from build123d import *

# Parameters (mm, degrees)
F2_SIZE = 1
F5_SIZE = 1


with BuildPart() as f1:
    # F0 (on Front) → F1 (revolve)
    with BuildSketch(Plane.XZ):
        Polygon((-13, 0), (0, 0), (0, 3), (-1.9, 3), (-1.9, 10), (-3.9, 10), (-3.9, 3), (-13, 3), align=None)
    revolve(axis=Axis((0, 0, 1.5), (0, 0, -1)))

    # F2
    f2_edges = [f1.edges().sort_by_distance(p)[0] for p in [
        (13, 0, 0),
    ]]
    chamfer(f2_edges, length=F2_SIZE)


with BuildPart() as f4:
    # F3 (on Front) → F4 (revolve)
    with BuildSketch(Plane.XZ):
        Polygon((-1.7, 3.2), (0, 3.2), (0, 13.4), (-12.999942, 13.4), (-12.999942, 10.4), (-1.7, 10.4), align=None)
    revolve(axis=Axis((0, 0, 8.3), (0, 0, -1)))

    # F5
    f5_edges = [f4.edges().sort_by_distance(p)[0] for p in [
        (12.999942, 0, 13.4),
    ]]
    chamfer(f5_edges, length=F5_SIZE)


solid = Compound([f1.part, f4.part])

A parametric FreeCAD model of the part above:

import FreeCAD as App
import Part
import Sketcher


def edges_at(feature, points):
    """Names of the edges that pass closest to the given points."""
    edges = feature.Shape.Edges
    near = lambda p: min(range(len(edges)), key=lambda i: edges[i].distToShape(Part.Vertex(*p))[0])
    return sorted({f"Edge{near(p) + 1}" for p in points})

doc = App.newDocument("Part")
body = doc.addObject("PartDesign::Body", "Body")

# Sketch on XZ plane
sketch1 = body.newObject("Sketcher::SketchObject", "Sketch")
sketch1.AttachmentSupport = (doc.getObject("XZ_Plane"), [""])
sketch1.MapMode = "FlatFace"
sketch1.addGeometry(Part.LineSegment(App.Vector(-13, 0, 0), App.Vector(0, 0, 0)), False)
sketch1.addGeometry(Part.LineSegment(App.Vector(0, 0, 0), App.Vector(0, 3, 0)), False)
sketch1.addGeometry(Part.LineSegment(App.Vector(0, 3, 0), App.Vector(-1.9, 3, 0)), False)
sketch1.addGeometry(Part.LineSegment(App.Vector(-1.9, 3, 0), App.Vector(-1.9, 10, 0)), False)
sketch1.addGeometry(Part.LineSegment(App.Vector(-1.9, 10, 0), App.Vector(-3.9, 10, 0)), False)
sketch1.addGeometry(Part.LineSegment(App.Vector(-3.9, 10, 0), App.Vector(-3.9, 3, 0)), False)
sketch1.addGeometry(Part.LineSegment(App.Vector(-3.9, 3, 0), App.Vector(-13, 3, 0)), False)
sketch1.addGeometry(Part.LineSegment(App.Vector(-13, 3, 0), App.Vector(-13, 0, 0)), False)
sketch1.addConstraint(Sketcher.Constraint("Coincident", 0, 2, 1, 1))
sketch1.addConstraint(Sketcher.Constraint("Coincident", 1, 2, 2, 1))
sketch1.addConstraint(Sketcher.Constraint("Coincident", 2, 2, 3, 1))
sketch1.addConstraint(Sketcher.Constraint("Coincident", 3, 2, 4, 1))
sketch1.addConstraint(Sketcher.Constraint("Coincident", 4, 2, 5, 1))
sketch1.addConstraint(Sketcher.Constraint("Coincident", 5, 2, 6, 1))
sketch1.addConstraint(Sketcher.Constraint("Coincident", 6, 2, 7, 1))
sketch1.addConstraint(Sketcher.Constraint("Coincident", 7, 2, 0, 1))
sketch1.addConstraint(Sketcher.Constraint("Horizontal", 0))
sketch1.addConstraint(Sketcher.Constraint("Vertical", 1))
sketch1.addConstraint(Sketcher.Constraint("Horizontal", 2))
sketch1.addConstraint(Sketcher.Constraint("Vertical", 3))
sketch1.addConstraint(Sketcher.Constraint("Horizontal", 4))
sketch1.addConstraint(Sketcher.Constraint("Vertical", 5))
sketch1.addConstraint(Sketcher.Constraint("Horizontal", 6))
sketch1.addConstraint(Sketcher.Constraint("Vertical", 7))
sketch1.addConstraint(Sketcher.Constraint("Coincident", 0, 2, -1, 1))
sketch1.addConstraint(Sketcher.Constraint("Horizontal", 2, 2, 5, 2))
sketch1.addConstraint(Sketcher.Constraint("DistanceX", 0, 1, 0, 2, 13.0))
sketch1.addConstraint(Sketcher.Constraint("DistanceX", 4, 2, 4, 1, 2.0))
sketch1.addConstraint(Sketcher.Constraint("DistanceY", 1, 1, 1, 2, 3.0))
sketch1.addConstraint(Sketcher.Constraint("DistanceY", 3, 1, 3, 2, 7.0))
sketch1.addConstraint(Sketcher.Constraint("DistanceX", 2, 2, 2, 1, 1.9))
revolution = body.newObject("PartDesign::Revolution", "Revolution")
revolution.Profile = sketch1
revolution.ReferenceAxis = (sketch1, ["V_Axis"])
revolution.Angle = 360
doc.recompute()

chamfer = body.newObject("PartDesign::Chamfer", "Chamfer")
chamfer.Base = (revolution, edges_at(revolution, [(13, 0, 0)]))
chamfer.Size = 1
body2 = doc.addObject("PartDesign::Body", "Body001")

# Sketch on XZ plane
sketch2 = body2.newObject("Sketcher::SketchObject", "Sketch001")
sketch2.AttachmentSupport = (doc.getObject("XZ_Plane001"), [""])
sketch2.MapMode = "FlatFace"
sketch2.addGeometry(Part.LineSegment(App.Vector(-1.7, 3.2, 0), App.Vector(0, 3.2, 0)), False)
sketch2.addGeometry(Part.LineSegment(App.Vector(0, 3.2, 0), App.Vector(0, 13.4, 0)), False)
sketch2.addGeometry(Part.LineSegment(App.Vector(0, 13.4, 0), App.Vector(-13, 13.4, 0)), False)
sketch2.addGeometry(Part.LineSegment(App.Vector(-13, 13.4, 0), App.Vector(-13, 10.4, 0)), False)
sketch2.addGeometry(Part.LineSegment(App.Vector(-13, 10.4, 0), App.Vector(-1.7, 10.4, 0)), False)
sketch2.addGeometry(Part.LineSegment(App.Vector(-1.7, 10.4, 0), App.Vector(-1.7, 3.2, 0)), False)
sketch2.addConstraint(Sketcher.Constraint("Coincident", 0, 2, 1, 1))
sketch2.addConstraint(Sketcher.Constraint("Coincident", 1, 2, 2, 1))
sketch2.addConstraint(Sketcher.Constraint("Coincident", 2, 2, 3, 1))
sketch2.addConstraint(Sketcher.Constraint("Coincident", 3, 2, 4, 1))
sketch2.addConstraint(Sketcher.Constraint("Coincident", 4, 2, 5, 1))
sketch2.addConstraint(Sketcher.Constraint("Coincident", 5, 2, 0, 1))
sketch2.addConstraint(Sketcher.Constraint("Horizontal", 0))
sketch2.addConstraint(Sketcher.Constraint("Vertical", 1))
sketch2.addConstraint(Sketcher.Constraint("Horizontal", 2))
sketch2.addConstraint(Sketcher.Constraint("Vertical", 3))
sketch2.addConstraint(Sketcher.Constraint("Horizontal", 4))
sketch2.addConstraint(Sketcher.Constraint("Vertical", 5))
sketch2.addConstraint(Sketcher.Constraint("PointOnObject", 0, 2, -2))
sketch2.addConstraint(Sketcher.Constraint("DistanceY", 3, 2, 3, 1, 3.0))
sketch2.addConstraint(Sketcher.Constraint("DistanceX", 0, 1, 0, 2, 1.7))
sketch2.addConstraint(Sketcher.Constraint("DistanceY", 1, 1, 1, 2, 10.2))
sketch2.addConstraint(Sketcher.Constraint("DistanceY", -1, 1, 0, 2, 3.2))
sketch2.addConstraint(Sketcher.Constraint("DistanceX", 2, 2, 2, 1, 12.999942))
revolution2 = body2.newObject("PartDesign::Revolution", "Revolution001")
revolution2.Profile = sketch2
revolution2.ReferenceAxis = (sketch2, ["V_Axis"])
revolution2.Angle = 360
doc.recompute()

chamfer2 = body2.newObject("PartDesign::Chamfer", "Chamfer001")
chamfer2.Base = (revolution2, edges_at(revolution2, [(13, 0, 13.4)]))
chamfer2.Size = 1

doc.recompute()
